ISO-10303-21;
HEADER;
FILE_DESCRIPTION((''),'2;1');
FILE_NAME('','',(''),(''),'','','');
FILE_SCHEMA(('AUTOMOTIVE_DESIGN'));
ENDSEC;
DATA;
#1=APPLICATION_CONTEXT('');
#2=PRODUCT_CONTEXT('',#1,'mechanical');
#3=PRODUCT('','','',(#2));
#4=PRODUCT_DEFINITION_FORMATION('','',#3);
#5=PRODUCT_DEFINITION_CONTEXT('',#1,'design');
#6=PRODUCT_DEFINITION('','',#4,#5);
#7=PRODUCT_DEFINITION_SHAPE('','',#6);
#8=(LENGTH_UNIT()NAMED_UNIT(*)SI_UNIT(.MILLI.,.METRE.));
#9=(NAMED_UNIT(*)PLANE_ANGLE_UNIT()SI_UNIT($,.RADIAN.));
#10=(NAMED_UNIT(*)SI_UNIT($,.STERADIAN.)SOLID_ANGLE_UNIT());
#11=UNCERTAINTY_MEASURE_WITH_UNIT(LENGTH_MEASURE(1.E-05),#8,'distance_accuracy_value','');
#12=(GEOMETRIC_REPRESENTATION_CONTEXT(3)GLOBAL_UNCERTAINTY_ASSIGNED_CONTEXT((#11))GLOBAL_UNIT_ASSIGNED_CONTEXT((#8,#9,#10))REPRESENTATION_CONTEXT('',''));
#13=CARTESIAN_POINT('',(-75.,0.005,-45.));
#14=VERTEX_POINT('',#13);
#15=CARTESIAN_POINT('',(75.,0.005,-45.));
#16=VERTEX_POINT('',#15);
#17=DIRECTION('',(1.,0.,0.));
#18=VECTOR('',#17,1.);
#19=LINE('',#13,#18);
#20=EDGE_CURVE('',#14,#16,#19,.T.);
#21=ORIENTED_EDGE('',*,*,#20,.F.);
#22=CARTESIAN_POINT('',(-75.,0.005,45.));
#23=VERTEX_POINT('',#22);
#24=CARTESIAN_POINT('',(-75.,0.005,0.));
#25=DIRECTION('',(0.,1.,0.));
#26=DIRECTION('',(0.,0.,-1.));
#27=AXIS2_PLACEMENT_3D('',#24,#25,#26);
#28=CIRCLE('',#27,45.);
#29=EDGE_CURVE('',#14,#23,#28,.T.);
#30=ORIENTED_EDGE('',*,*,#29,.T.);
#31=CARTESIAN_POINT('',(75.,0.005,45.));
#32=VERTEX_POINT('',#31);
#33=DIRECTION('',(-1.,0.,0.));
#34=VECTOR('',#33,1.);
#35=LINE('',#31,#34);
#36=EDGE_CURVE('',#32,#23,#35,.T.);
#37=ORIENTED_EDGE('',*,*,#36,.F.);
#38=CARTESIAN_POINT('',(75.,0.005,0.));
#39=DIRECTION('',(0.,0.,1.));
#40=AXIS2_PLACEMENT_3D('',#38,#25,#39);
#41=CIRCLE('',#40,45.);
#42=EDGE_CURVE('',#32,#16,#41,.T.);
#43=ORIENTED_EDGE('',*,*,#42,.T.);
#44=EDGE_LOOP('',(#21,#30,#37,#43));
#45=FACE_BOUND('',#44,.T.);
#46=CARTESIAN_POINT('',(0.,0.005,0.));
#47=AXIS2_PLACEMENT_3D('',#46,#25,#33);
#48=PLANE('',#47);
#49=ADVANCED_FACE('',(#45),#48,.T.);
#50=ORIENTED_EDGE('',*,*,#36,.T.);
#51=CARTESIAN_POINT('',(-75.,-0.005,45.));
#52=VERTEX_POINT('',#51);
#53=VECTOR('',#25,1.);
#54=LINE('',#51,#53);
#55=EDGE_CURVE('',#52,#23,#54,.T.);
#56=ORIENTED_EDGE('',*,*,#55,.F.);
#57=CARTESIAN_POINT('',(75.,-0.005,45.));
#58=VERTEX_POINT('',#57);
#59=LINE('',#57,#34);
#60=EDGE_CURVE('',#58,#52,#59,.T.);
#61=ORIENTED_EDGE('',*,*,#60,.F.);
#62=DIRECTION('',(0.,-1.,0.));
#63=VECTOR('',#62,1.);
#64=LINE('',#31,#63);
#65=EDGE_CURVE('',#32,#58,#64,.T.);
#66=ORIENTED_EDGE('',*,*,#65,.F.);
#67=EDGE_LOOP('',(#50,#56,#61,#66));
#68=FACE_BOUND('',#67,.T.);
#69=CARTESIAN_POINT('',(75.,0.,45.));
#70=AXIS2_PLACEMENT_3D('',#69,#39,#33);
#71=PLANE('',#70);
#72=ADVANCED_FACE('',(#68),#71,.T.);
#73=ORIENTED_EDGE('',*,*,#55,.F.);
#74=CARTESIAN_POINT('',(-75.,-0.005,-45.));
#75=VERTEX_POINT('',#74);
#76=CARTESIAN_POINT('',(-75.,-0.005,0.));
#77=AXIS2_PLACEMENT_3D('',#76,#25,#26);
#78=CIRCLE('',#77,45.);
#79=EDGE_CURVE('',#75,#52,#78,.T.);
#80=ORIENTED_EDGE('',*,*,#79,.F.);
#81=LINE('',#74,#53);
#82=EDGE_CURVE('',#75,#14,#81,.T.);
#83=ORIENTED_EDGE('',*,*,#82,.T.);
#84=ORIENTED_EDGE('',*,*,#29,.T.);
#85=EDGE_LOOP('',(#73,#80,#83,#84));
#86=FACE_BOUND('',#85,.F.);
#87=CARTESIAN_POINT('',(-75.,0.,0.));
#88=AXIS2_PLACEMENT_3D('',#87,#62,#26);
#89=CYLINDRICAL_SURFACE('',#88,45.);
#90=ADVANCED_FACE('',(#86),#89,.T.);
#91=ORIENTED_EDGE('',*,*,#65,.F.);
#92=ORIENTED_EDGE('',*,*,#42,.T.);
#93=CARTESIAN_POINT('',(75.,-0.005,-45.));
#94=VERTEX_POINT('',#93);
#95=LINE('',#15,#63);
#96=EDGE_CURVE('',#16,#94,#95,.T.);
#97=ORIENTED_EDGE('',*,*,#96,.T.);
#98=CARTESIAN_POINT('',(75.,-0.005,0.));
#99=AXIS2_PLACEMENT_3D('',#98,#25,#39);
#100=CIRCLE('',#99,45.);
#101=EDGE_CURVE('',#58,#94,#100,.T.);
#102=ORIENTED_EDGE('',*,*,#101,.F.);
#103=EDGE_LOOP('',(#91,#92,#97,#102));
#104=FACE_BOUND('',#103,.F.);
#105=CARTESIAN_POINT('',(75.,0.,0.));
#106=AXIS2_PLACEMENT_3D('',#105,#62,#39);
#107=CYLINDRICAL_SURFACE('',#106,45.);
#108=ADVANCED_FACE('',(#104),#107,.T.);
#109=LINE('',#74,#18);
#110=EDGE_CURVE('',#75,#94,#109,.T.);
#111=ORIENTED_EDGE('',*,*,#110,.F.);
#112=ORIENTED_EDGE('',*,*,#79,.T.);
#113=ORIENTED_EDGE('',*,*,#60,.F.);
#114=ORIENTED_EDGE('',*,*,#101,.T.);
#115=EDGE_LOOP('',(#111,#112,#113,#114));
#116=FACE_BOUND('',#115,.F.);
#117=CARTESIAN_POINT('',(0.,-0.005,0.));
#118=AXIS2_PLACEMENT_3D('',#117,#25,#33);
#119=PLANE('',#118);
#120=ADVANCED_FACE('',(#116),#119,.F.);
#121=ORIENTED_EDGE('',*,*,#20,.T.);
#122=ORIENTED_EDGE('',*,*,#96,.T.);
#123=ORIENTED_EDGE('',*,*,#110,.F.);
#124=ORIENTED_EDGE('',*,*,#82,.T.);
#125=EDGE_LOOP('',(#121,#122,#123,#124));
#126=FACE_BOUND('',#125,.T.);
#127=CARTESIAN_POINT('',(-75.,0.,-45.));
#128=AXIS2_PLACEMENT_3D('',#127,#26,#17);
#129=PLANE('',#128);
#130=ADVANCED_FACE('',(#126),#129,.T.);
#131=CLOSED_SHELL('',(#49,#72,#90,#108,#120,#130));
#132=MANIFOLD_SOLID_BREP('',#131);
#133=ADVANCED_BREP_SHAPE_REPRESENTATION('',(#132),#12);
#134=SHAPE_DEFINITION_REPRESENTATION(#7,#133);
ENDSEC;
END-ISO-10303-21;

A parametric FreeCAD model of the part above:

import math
import FreeCAD as App
import Part
import Sketcher
from FreeCAD import Vector

doc = App.newDocument("Part")
body = doc.addObject("PartDesign::Body", "Body")

sketch1 = body.newObject("Sketcher::SketchObject", "Sketch")
sketch1.AttachmentSupport = (doc.getObject("XZ_Plane"), [""])
sketch1.MapMode = "FlatFace"
sketch1.addGeometry([
    Part.LineSegment(Vector(75, -45, 0), Vector(-75, -45, 0)),
    Part.ArcOfCircle(Part.Circle(Vector(-75, 0, 0), Vector(0, 0, 1), 45), math.radians(90), math.radians(270)),
    Part.LineSegment(Vector(-75, 45, 0), Vector(75, 45, 0)),
    Part.ArcOfCircle(Part.Circle(Vector(75, 0, 0), Vector(0, 0, 1), 45), math.radians(-90), math.radians(90)),
], False)
sketch1.addConstraint([
    Sketcher.Constraint("Tangent", 0, 2, 1, 2),
    Sketcher.Constraint("Tangent", 1, 1, 2, 1),
    Sketcher.Constraint("Tangent", 2, 2, 3, 2),
    Sketcher.Constraint("Tangent", 3, 1, 0, 1),
    Sketcher.Constraint("Horizontal", 0),
    Sketcher.Constraint("Horizontal", 2),
    Sketcher.Constraint("Symmetric", 1, 3, 3, 3, -1, 1),
    Sketcher.Constraint("Radius", 1, 45.0),
    Sketcher.Constraint("DistanceX", 0, 2, 0, 1, 150.0),
])
pad1 = body.newObject("PartDesign::Pad", "Pad")
pad1.Profile = sketch1
pad1.Length = 0.01
pad1.Midplane = True

doc.recompute()
